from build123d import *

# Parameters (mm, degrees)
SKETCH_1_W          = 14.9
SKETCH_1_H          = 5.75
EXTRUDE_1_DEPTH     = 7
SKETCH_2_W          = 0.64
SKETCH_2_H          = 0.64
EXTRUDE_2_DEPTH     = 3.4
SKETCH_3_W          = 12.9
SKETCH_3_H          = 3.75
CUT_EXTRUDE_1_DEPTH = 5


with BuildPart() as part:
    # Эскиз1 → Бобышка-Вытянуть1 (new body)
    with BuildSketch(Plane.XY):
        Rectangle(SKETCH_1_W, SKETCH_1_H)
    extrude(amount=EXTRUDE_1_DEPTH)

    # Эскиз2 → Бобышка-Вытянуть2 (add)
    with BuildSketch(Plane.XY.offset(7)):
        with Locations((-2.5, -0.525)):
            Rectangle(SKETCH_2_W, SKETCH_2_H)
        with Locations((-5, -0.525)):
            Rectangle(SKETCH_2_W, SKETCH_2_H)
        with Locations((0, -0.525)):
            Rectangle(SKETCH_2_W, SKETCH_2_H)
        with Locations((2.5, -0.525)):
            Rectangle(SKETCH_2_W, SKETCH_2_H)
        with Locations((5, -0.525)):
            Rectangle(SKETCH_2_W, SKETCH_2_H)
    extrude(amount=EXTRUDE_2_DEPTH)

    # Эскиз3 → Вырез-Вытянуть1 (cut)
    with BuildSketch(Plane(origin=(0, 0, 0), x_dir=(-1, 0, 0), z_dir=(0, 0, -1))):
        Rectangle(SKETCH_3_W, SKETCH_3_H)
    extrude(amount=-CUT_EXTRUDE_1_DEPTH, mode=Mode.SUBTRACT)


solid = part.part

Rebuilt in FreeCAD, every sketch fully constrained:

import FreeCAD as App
import Part
import Sketcher

V = App.Vector
Q = App.Units.Quantity

doc = App.newDocument("Part")
body = doc.addObject("PartDesign::Body", "Body")

# Sketch on XY plane
sketch1 = body.newObject("Sketcher::SketchObject", "Sketch")
sketch1.AttachmentSupport = (doc.getObject("XY_Plane"), [""])
sketch1.MapMode = "FlatFace"
sketch1.addGeometry(Part.LineSegment(V(-7, 3, 0), V(-7, -3, 0)), False)
sketch1.addGeometry(Part.LineSegment(V(-7, -3, 0), V(7, -3, 0)), False)
sketch1.addGeometry(Part.LineSegment(V(7, -3, 0), V(7, 3, 0)), False)
sketch1.addGeometry(Part.LineSegment(V(7, 3, 0), V(-7, 3, 0)), False)
sketch1.addConstraint(Sketcher.Constraint("Coincident", 0, 2, 1, 1))
sketch1.addConstraint(Sketcher.Constraint("Coincident", 1, 2, 2, 1))
sketch1.addConstraint(Sketcher.Constraint("Coincident", 2, 2, 3, 1))
sketch1.addConstraint(Sketcher.Constraint("Coincident", 3, 2, 0, 1))
sketch1.addConstraint(Sketcher.Constraint("Vertical", 0))
sketch1.addConstraint(Sketcher.Constraint("Horizontal", 1))
sketch1.addConstraint(Sketcher.Constraint("Vertical", 2))
sketch1.addConstraint(Sketcher.Constraint("Horizontal", 3))
sketch1.addConstraint(Sketcher.Constraint("Symmetric", 0, 2, 2, 2, -1, 1))
sketch1.addConstraint(Sketcher.Constraint("DistanceX", 1, 1, 1, 2, Q("14.9 mm")))
sketch1.addConstraint(Sketcher.Constraint("DistanceY", 0, 2, 0, 1, Q("5.75 mm")))
pad1 = body.newObject("PartDesign::Pad", "Pad")
pad1.Profile = sketch1
pad1.Length = 7

# Sketch on XY plane
sketch2 = body.newObject("Sketcher::SketchObject", "Sketch001")
sketch2.AttachmentSupport = (doc.getObject("XY_Plane"), [""])
sketch2.MapMode = "FlatFace"
sketch2.AttachmentOffset = App.Placement(V(0, 0, 7), App.Rotation())
sketch2.addGeometry(Part.LineSegment(V(-2.8, -0.2, 0), V(-2.8, -0.8, 0)), False)
sketch2.addGeometry(Part.LineSegment(V(-2.8, -0.8, 0), V(-2.2, -0.8, 0)), False)
sketch2.addGeometry(Part.LineSegment(V(-2.2, -0.8, 0), V(-2.2, -0.2, 0)), False)
sketch2.addGeometry(Part.LineSegment(V(-2.2, -0.2, 0), V(-2.8, -0.2, 0)), False)
sketch2.addGeometry(Part.LineSegment(V(-5.3, -0.2, 0), V(-5.3, -0.8, 0)), False)
sketch2.addGeometry(Part.LineSegment(V(-5.3, -0.8, 0), V(-4.7, -0.8, 0)), False)
sketch2.addGeometry(Part.LineSegment(V(-4.7, -0.8, 0), V(-4.7, -0.2, 0)), False)
sketch2.addGeometry(Part.LineSegment(V(-4.7, -0.2, 0), V(-5.3, -0.2, 0)), False)
sketch2.addGeometry(Part.LineSegment(V(-0.3, -0.2, 0), V(-0.3, -0.8, 0)), False)
sketch2.addGeometry(Part.LineSegment(V(-0.3, -0.8, 0), V(0.3, -0.8, 0)), False)
sketch2.addGeometry(Part.LineSegment(V(0.3, -0.8, 0), V(0.3, -0.2, 0)), False)
sketch2.addGeometry(Part.LineSegment(V(0.3, -0.2, 0), V(-0.3, -0.2, 0)), False)
sketch2.addGeometry(Part.LineSegment(V(2.2, -0.2, 0), V(2.2, -0.8, 0)), False)
sketch2.addGeometry(Part.LineSegment(V(2.2, -0.8, 0), V(2.8, -0.8, 0)), False)
sketch2.addGeometry(Part.LineSegment(V(2.8, -0.8, 0), V(2.8, -0.2, 0)), False)
sketch2.addGeometry(Part.LineSegment(V(2.8, -0.2, 0), V(2.2, -0.2, 0)), False)
sketch2.addGeometry(Part.LineSegment(V(4.7, -0.2, 0), V(4.7, -0.8, 0)), False)
sketch2.addGeometry(Part.LineSegment(V(4.7, -0.8, 0), V(5.3, -0.8, 0)), False)
sketch2.addGeometry(Part.LineSegment(V(5.3, -0.8, 0), V(5.3, -0.2, 0)), False)
sketch2.addGeometry(Part.LineSegment(V(5.3, -0.2, 0), V(4.7, -0.2, 0)), False)
sketch2.addConstraint(Sketcher.Constraint("Coincident", 0, 2, 1, 1))
sketch2.addConstraint(Sketcher.Constraint("Coincident", 1, 2, 2, 1))
sketch2.addConstraint(Sketcher.Constraint("Coincident", 2, 2, 3, 1))
sketch2.addConstraint(Sketcher.Constraint("Coincident", 3, 2, 0, 1))
sketch2.addConstraint(Sketcher.Constraint("Coincident", 4, 2, 5, 1))
sketch2.addConstraint(Sketcher.Constraint("Coincident", 5, 2, 6, 1))
sketch2.addConstraint(Sketcher.Constraint("Coincident", 6, 2, 7, 1))
sketch2.addConstraint(Sketcher.Constraint("Coincident", 7, 2, 4, 1))
sketch2.addConstraint(Sketcher.Constraint("Coincident", 8, 2, 9, 1))
sketch2.addConstraint(Sketcher.Constraint("Coincident", 9, 2, 10, 1))
sketch2.addConstraint(Sketcher.Constraint("Coincident", 10, 2, 11, 1))
sketch2.addConstraint(Sketcher.Constraint("Coincident", 11, 2, 8, 1))
sketch2.addConstraint(Sketcher.Constraint("Coincident", 12, 2, 13, 1))
sketch2.addConstraint(Sketcher.Constraint("Coincident", 13, 2, 14, 1))
sketch2.addConstraint(Sketcher.Constraint("Coincident", 14, 2, 15, 1))
sketch2.addConstraint(Sketcher.Constraint("Coincident", 15, 2, 12, 1))
sketch2.addConstraint(Sketcher.Constraint("Coincident", 16, 2, 17, 1))
sketch2.addConstraint(Sketcher.Constraint("Coincident", 17, 2, 18, 1))
sketch2.addConstraint(Sketcher.Constraint("Coincident", 18, 2, 19, 1))
sketch2.addConstraint(Sketcher.Constraint("Coincident", 19, 2, 16, 1))
sketch2.addConstraint(Sketcher.Constraint("Vertical", 0))
sketch2.addConstraint(Sketcher.Constraint("Horizontal", 1))
sketch2.addConstraint(Sketcher.Constraint("Vertical", 2))
sketch2.addConstraint(Sketcher.Constraint("Horizontal", 3))
sketch2.addConstraint(Sketcher.Constraint("Vertical", 4))
sketch2.addConstraint(Sketcher.Constraint("Horizontal", 5))
sketch2.addConstraint(Sketcher.Constraint("Vertical", 6))
sketch2.addConstraint(Sketcher.Constraint("Horizontal", 7))
sketch2.addConstraint(Sketcher.Constraint("Vertical", 8))
sketch2.addConstraint(Sketcher.Constraint("Horizontal", 9))
sketch2.addConstraint(Sketcher.Constraint("Vertical", 10))
sketch2.addConstraint(Sketcher.Constraint("Horizontal", 11))
sketch2.addConstraint(Sketcher.Constraint("Vertical", 12))
sketch2.addConstraint(Sketcher.Constraint("Horizontal", 13))
sketch2.addConstraint(Sketcher.Constraint("Vertical", 14))
sketch2.addConstraint(Sketcher.Constraint("Horizontal", 15))
sketch2.addConstraint(Sketcher.Constraint("Vertical", 16))
sketch2.addConstraint(Sketcher.Constraint("Horizontal", 17))
sketch2.addConstraint(Sketcher.Constraint("Vertical", 18))
sketch2.addConstraint(Sketcher.Constraint("Horizontal", 19))
sketch2.addConstraint(Sketcher.Constraint("Symmetric", 1, 2, 12, 2, -2))
sketch2.addConstraint(Sketcher.Constraint("Symmetric", 3, 2, 14, 2, -2))
sketch2.addConstraint(Sketcher.Constraint("Symmetric", 5, 2, 16, 2, -2))
sketch2.addConstraint(Sketcher.Constraint("Symmetric", 7, 2, 18, 2, -2))
sketch2.addConstraint(Sketcher.Constraint("Horizontal", 1, 2, 4, 2))
sketch2.addConstraint(Sketcher.Constraint("Horizontal", 3, 2, 6, 2))
sketch2.addConstraint(Sketcher.Constraint("Horizontal", 5, 2, 8, 2))
sketch2.addConstraint(Sketcher.Constraint("Horizontal", 7, 2, 10, 2))
sketch2.addConstraint(Sketcher.Constraint("Equal", 3, 5))
sketch2.addConstraint(Sketcher.Constraint("Equal", 7, 9))
sketch2.addConstraint(Sketcher.Constraint("Equal", 19, 0))
sketch2.addConstraint(Sketcher.Constraint("DistanceX", 1, 1, 1, 2, Q("0.64 mm")))
sketch2.addConstraint(Sketcher.Constraint("DistanceX", 4, 2, 0, 2, Q("2.5 mm")))
sketch2.addConstraint(Sketcher.Constraint("DistanceX", 0, 2, 8, 2, Q("2.5 mm")))
sketch2.addConstraint(Sketcher.Constraint("DistanceX", 8, 2, 12, 2, Q("2.5 mm")))
sketch2.addConstraint(Sketcher.Constraint("DistanceY", 0, 2, -1, 1, Q("0.845 mm")))
pad2 = body.newObject("PartDesign::Pad", "Pad001")
pad2.Profile = sketch2
pad2.Length = 3.4

# Sketch on XY plane
sketch3 = body.newObject("Sketcher::SketchObject", "Sketch002")
sketch3.AttachmentSupport = (doc.getObject("XY_Plane"), [""])
sketch3.MapMode = "FlatFace"
sketch3.addGeometry(Part.LineSegment(V(6.5, 1.9, 0), V(6.5, -1.9, 0)), False)
sketch3.addGeometry(Part.LineSegment(V(6.5, -1.9, 0), V(-6.5, -1.9, 0)), False)
sketch3.addGeometry(Part.LineSegment(V(-6.5, -1.9, 0), V(-6.5, 1.9, 0)), False)
sketch3.addGeometry(Part.LineSegment(V(-6.5, 1.9, 0), V(6.5, 1.9, 0)), False)
sketch3.addConstraint(Sketcher.Constraint("Coincident", 0, 2, 1, 1))
sketch3.addConstraint(Sketcher.Constraint("Coincident", 1, 2, 2, 1))
sketch3.addConstraint(Sketcher.Constraint("Coincident", 2, 2, 3, 1))
sketch3.addConstraint(Sketcher.Constraint("Coincident", 3, 2, 0, 1))
sketch3.addConstraint(Sketcher.Constraint("Vertical", 0))
sketch3.addConstraint(Sketcher.Constraint("Horizontal", 1))
sketch3.addConstraint(Sketcher.Constraint("Vertical", 2))
sketch3.addConstraint(Sketcher.Constraint("Horizontal", 3))
sketch3.addConstraint(Sketcher.Constraint("Symmetric", 0, 2, 2, 2, -1, 1))
sketch3.addConstraint(Sketcher.Constraint("DistanceX", 1, 2, 1, 1, Q("12.9 mm")))
sketch3.addConstraint(Sketcher.Constraint("DistanceY", 0, 2, 0, 1, Q("3.75 mm")))
pocket1 = body.newObject("PartDesign::Pocket", "Pocket")
pocket1.Profile = sketch3
pocket1.Length = 5
pocket1.Reversed = True

doc.recompute()
